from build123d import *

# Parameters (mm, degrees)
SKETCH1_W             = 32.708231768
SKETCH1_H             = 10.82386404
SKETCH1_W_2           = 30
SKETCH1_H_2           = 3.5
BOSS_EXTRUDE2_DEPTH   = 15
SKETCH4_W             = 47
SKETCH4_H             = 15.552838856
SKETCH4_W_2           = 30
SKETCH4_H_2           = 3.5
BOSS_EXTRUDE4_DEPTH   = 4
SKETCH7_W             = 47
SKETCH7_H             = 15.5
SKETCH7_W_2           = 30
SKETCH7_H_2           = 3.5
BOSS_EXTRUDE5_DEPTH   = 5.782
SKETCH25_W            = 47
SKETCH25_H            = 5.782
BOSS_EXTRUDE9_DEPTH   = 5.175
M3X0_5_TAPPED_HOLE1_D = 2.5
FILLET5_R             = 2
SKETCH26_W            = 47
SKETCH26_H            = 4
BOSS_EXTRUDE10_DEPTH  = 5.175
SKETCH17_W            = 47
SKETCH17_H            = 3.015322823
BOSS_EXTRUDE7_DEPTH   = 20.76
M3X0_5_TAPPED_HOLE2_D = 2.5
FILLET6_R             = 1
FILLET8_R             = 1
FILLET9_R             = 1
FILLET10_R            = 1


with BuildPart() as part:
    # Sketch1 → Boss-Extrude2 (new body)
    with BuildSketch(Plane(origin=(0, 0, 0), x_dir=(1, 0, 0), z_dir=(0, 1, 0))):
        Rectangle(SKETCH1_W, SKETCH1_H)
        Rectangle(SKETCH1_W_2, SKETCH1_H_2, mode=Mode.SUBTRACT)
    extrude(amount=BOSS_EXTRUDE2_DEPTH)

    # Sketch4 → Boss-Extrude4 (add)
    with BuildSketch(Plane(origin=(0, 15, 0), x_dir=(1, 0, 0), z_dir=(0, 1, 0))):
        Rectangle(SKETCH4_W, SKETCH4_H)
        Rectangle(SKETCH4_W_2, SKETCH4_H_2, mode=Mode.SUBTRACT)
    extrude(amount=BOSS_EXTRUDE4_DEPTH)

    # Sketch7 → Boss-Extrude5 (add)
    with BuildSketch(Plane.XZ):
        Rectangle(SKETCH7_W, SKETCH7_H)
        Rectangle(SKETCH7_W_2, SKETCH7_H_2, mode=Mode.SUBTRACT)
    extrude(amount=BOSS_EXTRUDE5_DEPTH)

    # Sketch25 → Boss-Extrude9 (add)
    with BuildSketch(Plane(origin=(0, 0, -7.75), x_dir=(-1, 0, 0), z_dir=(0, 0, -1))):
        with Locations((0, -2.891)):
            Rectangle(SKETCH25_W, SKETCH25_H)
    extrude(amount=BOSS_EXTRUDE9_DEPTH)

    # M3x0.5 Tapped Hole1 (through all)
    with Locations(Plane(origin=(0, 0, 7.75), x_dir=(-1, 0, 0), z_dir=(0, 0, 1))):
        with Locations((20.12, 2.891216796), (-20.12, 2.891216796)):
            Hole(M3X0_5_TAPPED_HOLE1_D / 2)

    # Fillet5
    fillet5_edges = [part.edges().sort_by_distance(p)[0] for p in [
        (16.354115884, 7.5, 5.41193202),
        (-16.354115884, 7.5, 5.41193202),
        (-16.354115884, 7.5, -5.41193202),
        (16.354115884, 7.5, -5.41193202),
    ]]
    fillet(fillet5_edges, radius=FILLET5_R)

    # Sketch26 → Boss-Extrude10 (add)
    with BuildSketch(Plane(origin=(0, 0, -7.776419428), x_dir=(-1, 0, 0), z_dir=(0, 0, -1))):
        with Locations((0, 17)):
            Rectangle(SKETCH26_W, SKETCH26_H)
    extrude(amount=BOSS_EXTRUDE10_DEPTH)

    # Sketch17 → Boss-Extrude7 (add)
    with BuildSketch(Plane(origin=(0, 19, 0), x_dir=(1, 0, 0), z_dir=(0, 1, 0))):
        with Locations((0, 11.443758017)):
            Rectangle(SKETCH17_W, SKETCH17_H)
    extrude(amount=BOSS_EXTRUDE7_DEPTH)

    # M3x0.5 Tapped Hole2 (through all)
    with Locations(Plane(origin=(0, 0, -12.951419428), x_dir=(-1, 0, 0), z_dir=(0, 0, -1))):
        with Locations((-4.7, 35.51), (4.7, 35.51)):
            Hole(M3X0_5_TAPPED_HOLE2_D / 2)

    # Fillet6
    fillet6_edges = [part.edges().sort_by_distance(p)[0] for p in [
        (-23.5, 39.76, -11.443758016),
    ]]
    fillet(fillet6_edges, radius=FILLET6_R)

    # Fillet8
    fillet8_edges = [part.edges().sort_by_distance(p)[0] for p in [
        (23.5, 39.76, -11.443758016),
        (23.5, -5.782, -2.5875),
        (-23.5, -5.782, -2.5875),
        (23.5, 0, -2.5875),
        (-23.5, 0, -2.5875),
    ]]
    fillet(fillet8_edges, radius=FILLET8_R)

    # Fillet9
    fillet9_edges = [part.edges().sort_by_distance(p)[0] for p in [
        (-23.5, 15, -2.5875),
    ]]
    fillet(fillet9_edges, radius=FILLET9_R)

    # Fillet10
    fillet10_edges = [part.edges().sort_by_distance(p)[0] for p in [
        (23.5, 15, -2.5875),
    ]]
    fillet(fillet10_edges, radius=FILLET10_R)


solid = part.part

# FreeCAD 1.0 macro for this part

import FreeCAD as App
import Part
import Sketcher
Q = App.Units.Quantity


def edges_at(feature, points):
    """Names of the edges that pass closest to the given points."""
    edges = feature.Shape.Edges
    near = lambda p: min(range(len(edges)), key=lambda i: edges[i].distToShape(Part.Vertex(*p))[0])
    return sorted({f"Edge{near(p) + 1}" for p in points})

doc = App.newDocument("Part")
body = doc.addObject("PartDesign::Body", "Body")

sketch1 = doc.addObject("Sketcher::SketchObject", "Sketch")
body.addObject(sketch1)
sketch1.AttachmentSupport = (doc.XZ_Plane, [""])
sketch1.MapMode = "FlatFace"
sketch1.addGeometry([
    Part.LineSegment(App.Vector(-16.4, -5.4, 0), App.Vector(-16.4, 5.4, 0)),
    Part.LineSegment(App.Vector(-16.4, 5.4, 0), App.Vector(16.4, 5.4, 0)),
    Part.LineSegment(App.Vector(16.4, 5.4, 0), App.Vector(16.4, -5.4, 0)),
    Part.LineSegment(App.Vector(16.4, -5.4, 0), App.Vector(-16.4, -5.4, 0)),
    Part.LineSegment(App.Vector(15, 1.8, 0), App.Vector(-15, 1.8, 0)),
    Part.LineSegment(App.Vector(-15, 1.8, 0), App.Vector(-15, -1.8, 0)),
    Part.LineSegment(App.Vector(-15, -1.8, 0), App.Vector(15, -1.8, 0)),
    Part.LineSegment(App.Vector(15, -1.8, 0), App.Vector(15, 1.8, 0)),
], False)
sketch1.addConstraint([
    Sketcher.Constraint("Coincident", 0, 2, 1, 1),
    Sketcher.Constraint("Coincident", 1, 2, 2, 1),
    Sketcher.Constraint("Coincident", 2, 2, 3, 1),
    Sketcher.Constraint("Coincident", 3, 2, 0, 1),
    Sketcher.Constraint("Coincident", 4, 2, 5, 1),
    Sketcher.Constraint("Coincident", 5, 2, 6, 1),
    Sketcher.Constraint("Coincident", 6, 2, 7, 1),
    Sketcher.Constraint("Coincident", 7, 2, 4, 1),
    Sketcher.Constraint("Vertical", 0),
    Sketcher.Constraint("Horizontal", 1),
    Sketcher.Constraint("Vertical", 2),
    Sketcher.Constraint("Horizontal", 3),
    Sketcher.Constraint("Horizontal", 4),
    Sketcher.Constraint("Vertical", 5),
    Sketcher.Constraint("Horizontal", 6),
    Sketcher.Constraint("Vertical", 7),
    Sketcher.Constraint("Symmetric", 0, 2, 2, 2, -1, 1),
    Sketcher.Constraint("Symmetric", 4, 2, 6, 2, -1, 1),
    Sketcher.Constraint("DistanceX", 4, 2, 4, 1, Q("30 mm")),
    Sketcher.Constraint("DistanceY", 5, 2, 5, 1, Q("3.5 mm")),
    Sketcher.Constraint("DistanceX", 1, 1, 1, 2, Q("32.708232 mm")),
    Sketcher.Constraint("DistanceY", 0, 1, 0, 2, Q("10.823864 mm")),
])
pad1 = doc.addObject("PartDesign::Pad", "Pad")
body.addObject(pad1)
pad1.Profile = sketch1
pad1.Length = 15
pad1.Reversed = True

sketch2 = doc.addObject("Sketcher::SketchObject", "Sketch001")
body.addObject(sketch2)
sketch2.AttachmentSupport = (doc.XZ_Plane, [""])
sketch2.MapMode = "FlatFace"
sketch2.AttachmentOffset = App.Placement(App.Vector(0, 0, -15), App.Rotation())
sketch2.addGeometry([
    Part.LineSegment(App.Vector(-23.5, -7.8, 0), App.Vector(-23.5, 7.8, 0)),
    Part.LineSegment(App.Vector(-23.5, 7.8, 0), App.Vector(23.5, 7.8, 0)),
    Part.LineSegment(App.Vector(23.5, 7.8, 0), App.Vector(23.5, -7.8, 0)),
    Part.LineSegment(App.Vector(23.5, -7.8, 0), App.Vector(-23.5, -7.8, 0)),
    Part.LineSegment(App.Vector(15, 1.8, 0), App.Vector(-15, 1.8, 0)),
    Part.LineSegment(App.Vector(-15, 1.8, 0), App.Vector(-15, -1.8, 0)),
    Part.LineSegment(App.Vector(-15, -1.8, 0), App.Vector(15, -1.8, 0)),
    Part.LineSegment(App.Vector(15, -1.8, 0), App.Vector(15, 1.8, 0)),
], False)
sketch2.addConstraint([
    Sketcher.Constraint("Coincident", 0, 2, 1, 1),
    Sketcher.Constraint("Coincident", 1, 2, 2, 1),
    Sketcher.Constraint("Coincident", 2, 2, 3, 1),
    Sketcher.Constraint("Coincident", 3, 2, 0, 1),
    Sketcher.Constraint("Coincident", 4, 2, 5, 1),
    Sketcher.Constraint("Coincident", 5, 2, 6, 1),
    Sketcher.Constraint("Coincident", 6, 2, 7, 1),
    Sketcher.Constraint("Coincident", 7, 2, 4, 1),
    Sketcher.Constraint("Vertical", 0),
    Sketcher.Constraint("Horizontal", 1),
    Sketcher.Constraint("Vertical", 2),
    Sketcher.Constraint("Horizontal", 3),
    Sketcher.Constraint("Horizontal", 4),
    Sketcher.Constraint("Vertical", 5),
    Sketcher.Constraint("Horizontal", 6),
    Sketcher.Constraint("Vertical", 7),
    Sketcher.Constraint("Symmetric", 0, 2, 2, 2, -1, 1),
    Sketcher.Constraint("Symmetric", 4, 2, 6, 2, -1, 1),
    Sketcher.Constraint("DistanceX", 1, 1, 1, 2, Q("47 mm")),
    Sketcher.Constraint("DistanceX", 4, 2, 4, 1, Q("30 mm")),
    Sketcher.Constraint("DistanceY", 5, 2, 5, 1, Q("3.5 mm")),
    Sketcher.Constraint("DistanceY", 0, 1, 0, 2, Q("15.552839 mm")),
])
pad2 = doc.addObject("PartDesign::Pad", "Pad001")
body.addObject(pad2)
pad2.Profile = sketch2
pad2.Length = 4
pad2.Reversed = True

sketch3 = doc.addObject("Sketcher::SketchObject", "Sketch002")
body.addObject(sketch3)
sketch3.AttachmentSupport = (doc.XZ_Plane, [""])
sketch3.MapMode = "FlatFace"
sketch3.addGeometry([
    Part.LineSegment(App.Vector(-23.5, 7.8, 0), App.Vector(-23.5, -7.8, 0)),
    Part.LineSegment(App.Vector(-23.5, -7.8, 0), App.Vector(23.5, -7.8, 0)),
    Part.LineSegment(App.Vector(23.5, -7.8, 0), App.Vector(23.5, 7.8, 0)),
    Part.LineSegment(App.Vector(23.5, 7.8, 0), App.Vector(-23.5, 7.8, 0)),
    Part.LineSegment(App.Vector(15, -1.8, 0), App.Vector(-15, -1.8, 0)),
    Part.LineSegment(App.Vector(-15, -1.8, 0), App.Vector(-15, 1.8, 0)),
    Part.LineSegment(App.Vector(-15, 1.8, 0), App.Vector(15, 1.8, 0)),
    Part.LineSegment(App.Vector(15, 1.8, 0), App.Vector(15, -1.8, 0)),
], False)
sketch3.addConstraint([
    Sketcher.Constraint("Coincident", 0, 2, 1, 1),
    Sketcher.Constraint("Coincident", 1, 2, 2, 1),
    Sketcher.Constraint("Coincident", 2, 2, 3, 1),
    Sketcher.Constraint("Coincident", 3, 2, 0, 1),
    Sketcher.Constraint("Coincident", 4, 2, 5, 1),
    Sketcher.Constraint("Coincident", 5, 2, 6, 1),
    Sketcher.Constraint("Coincident", 6, 2, 7, 1),
    Sketcher.Constraint("Coincident", 7, 2, 4, 1),
    Sketcher.Constraint("Vertical", 0),
    Sketcher.Constraint("Horizontal", 1),
    Sketcher.Constraint("Vertical", 2),
    Sketcher.Constraint("Horizontal", 3),
    Sketcher.Constraint("Horizontal", 4),
    Sketcher.Constraint("Vertical", 5),
    Sketcher.Constraint("Horizontal", 6),
    Sketcher.Constraint("Vertical", 7),
    Sketcher.Constraint("Symmetric", 0, 2, 2, 2, -1, 1),
    Sketcher.Constraint("Symmetric", 4, 2, 6, 2, -1, 1),
    Sketcher.Constraint("DistanceX", 1, 1, 1, 2, Q("47 mm")),
    Sketcher.Constraint("DistanceX", 4, 2, 4, 1, Q("30 mm")),
    Sketcher.Constraint("DistanceY", 0, 2, 0, 1, Q("15.5 mm")),
    Sketcher.Constraint("DistanceY", 5, 1, 5, 2, Q("3.5 mm")),
])
pad3 = doc.addObject("PartDesign::Pad", "Pad002")
body.addObject(pad3)
pad3.Profile = sketch3
pad3.Length = 5.782

sketch4 = doc.addObject("Sketcher::SketchObject", "Sketch003")
body.addObject(sketch4)
sketch4.AttachmentSupport = (doc.XY_Plane, [""])
sketch4.MapMode = "FlatFace"
sketch4.AttachmentOffset = App.Placement(App.Vector(0, 0, -7.75), App.Rotation())
sketch4.addGeometry([
    Part.LineSegment(App.Vector(24, 0, 0), App.Vector(24, -6, 0)),
    Part.LineSegment(App.Vector(24, -6, 0), App.Vector(-24, -6, 0)),
    Part.LineSegment(App.Vector(-24, -6, 0), App.Vector(-24, 0, 0)),
    Part.LineSegment(App.Vector(-24, 0, 0), App.Vector(24, 0, 0)),
], False)
sketch4.addConstraint([
    Sketcher.Constraint("Coincident", 0, 2, 1, 1),
    Sketcher.Constraint("Coincident", 1, 2, 2, 1),
    Sketcher.Constraint("Coincident", 2, 2, 3, 1),
    Sketcher.Constraint("Coincident", 3, 2, 0, 1),
    Sketcher.Constraint("Vertical", 0),
    Sketcher.Constraint("Horizontal", 1),
    Sketcher.Constraint("Vertical", 2),
    Sketcher.Constraint("Horizontal", 3),
    Sketcher.Constraint("Symmetric", 2, 2, 3, 2, -1, 1),
    Sketcher.Constraint("DistanceX", 1, 2, 1, 1, Q("47 mm")),
    Sketcher.Constraint("DistanceY", 0, 2, 0, 1, Q("5.782 mm")),
])
pad4 = doc.addObject("PartDesign::Pad", "Pad003")
body.addObject(pad4)
pad4.Profile = sketch4
pad4.Length = 5.175
pad4.Reversed = True

sketch5 = doc.addObject("Sketcher::SketchObject", "Sketch004")
body.addObject(sketch5)
sketch5.AttachmentSupport = (doc.XY_Plane, [""])
sketch5.MapMode = "FlatFace"
sketch5.AttachmentOffset = App.Placement(App.Vector(0, 0, 7.75), App.Rotation())
sketch5.addGeometry([
    Part.Circle(App.Vector(-20.1, -2.9, 0), App.Vector(0, 0, 1), 1.2),
    Part.Circle(App.Vector(20.1, -2.9, 0), App.Vector(0, 0, 1), 1.2),
], False)
sketch5.addConstraint([
    Sketcher.Constraint("Equal", 0, 1),
    Sketcher.Constraint("Symmetric", 0, 3, 1, 3, -2),
    Sketcher.Constraint("Diameter", 0, Q("2.5 mm")),
    Sketcher.Constraint("DistanceX", 0, 3, -1, 1, Q("20.12 mm")),
    Sketcher.Constraint("DistanceY", 0, 3, -1, 1, Q("2.891217 mm")),
])
doc.recompute()
hole = doc.addObject("PartDesign::Hole", "Hole")
body.addObject(hole)
hole.Profile = sketch5
hole.ThreadType = "None"
hole.Diameter = 2.5
hole.DepthType = "ThroughAll"
doc.recompute()

fillet = doc.addObject("PartDesign::Fillet", "Fillet")
body.addObject(fillet)
fillet.Base = (hole, edges_at(hole, [
    (16.354, 7.5, 5.412),
    (-16.354, 7.5, 5.412),
    (-16.354, 7.5, -5.412),
    (16.354, 7.5, -5.412),
]))
fillet.Radius = 2

sketch6 = doc.addObject("Sketcher::SketchObject", "Sketch005")
body.addObject(sketch6)
sketch6.AttachmentSupport = (doc.XY_Plane, [""])
sketch6.MapMode = "FlatFace"
sketch6.AttachmentOffset = App.Placement(App.Vector(0, 0, -7.776419), App.Rotation())
sketch6.addGeometry([
    Part.LineSegment(App.Vector(23.5, 19, 0), App.Vector(23.5, 15, 0)),
    Part.LineSegment(App.Vector(23.5, 15, 0), App.Vector(-23.5, 15, 0)),
    Part.LineSegment(App.Vector(-23.5, 15, 0), App.Vector(-23.5, 19, 0)),
    Part.LineSegment(App.Vector(-23.5, 19, 0), App.Vector(23.5, 19, 0)),
], False)
sketch6.addConstraint([
    Sketcher.Constraint("Coincident", 0, 2, 1, 1),
    Sketcher.Constraint("Coincident", 1, 2, 2, 1),
    Sketcher.Constraint("Coincident", 2, 2, 3, 1),
    Sketcher.Constraint("Coincident", 3, 2, 0, 1),
    Sketcher.Constraint("Vertical", 0),
    Sketcher.Constraint("Horizontal", 1),
    Sketcher.Constraint("Vertical", 2),
    Sketcher.Constraint("Horizontal", 3),
    Sketcher.Constraint("DistanceX", 1, 2, 1, 1, Q("47 mm")),
    Sketcher.Constraint("DistanceY", 0, 2, 0, 1, Q("4 mm")),
    Sketcher.Constraint("DistanceY", -1, 1, 0, 2, Q("15 mm")),
    Sketcher.Constraint("DistanceX", -1, 1, 0, 2, Q("23.5 mm")),
])
pad5 = doc.addObject("PartDesign::Pad", "Pad004")
body.addObject(pad5)
pad5.Profile = sketch6
pad5.Length = 5.175
pad5.Reversed = True

sketch7 = doc.addObject("Sketcher::SketchObject", "Sketch006")
body.addObject(sketch7)
sketch7.AttachmentSupport = (doc.XZ_Plane, [""])
sketch7.MapMode = "FlatFace"
sketch7.AttachmentOffset = App.Placement(App.Vector(0, 0, -19), App.Rotation())
sketch7.addGeometry([
    Part.LineSegment(App.Vector(-23.5, -13, 0), App.Vector(-23.5, -9.9, 0)),
    Part.LineSegment(App.Vector(-23.5, -9.9, 0), App.Vector(23.5, -9.9, 0)),
    Part.LineSegment(App.Vector(23.5, -9.9, 0), App.Vector(23.5, -13, 0)),
    Part.LineSegment(App.Vector(23.5, -13, 0), App.Vector(-23.5, -13, 0)),
], False)
sketch7.addConstraint([
    Sketcher.Constraint("Coincident", 0, 2, 1, 1),
    Sketcher.Constraint("Coincident", 1, 2, 2, 1),
    Sketcher.Constraint("Coincident", 2, 2, 3, 1),
    Sketcher.Constraint("Coincident", 3, 2, 0, 1),
    Sketcher.Constraint("Vertical", 0),
    Sketcher.Constraint("Horizontal", 1),
    Sketcher.Constraint("Vertical", 2),
    Sketcher.Constraint("Horizontal", 3),
    Sketcher.Constraint("DistanceX", 1, 1, 1, 2, Q("47 mm")),
    Sketcher.Constraint("DistanceX", 0, 2, -1, 1, Q("23.5 mm")),
    Sketcher.Constraint("DistanceY", 0, 1, 0, 2, Q("3.015323 mm")),
    Sketcher.Constraint("DistanceY", 2, 2, -1, 1, Q("12.951419 mm")),
])
pad6 = doc.addObject("PartDesign::Pad", "Pad005")
body.addObject(pad6)
pad6.Profile = sketch7
pad6.Length = 20.76
pad6.Reversed = True

sketch8 = doc.addObject("Sketcher::SketchObject", "Sketch007")
body.addObject(sketch8)
sketch8.AttachmentSupport = (doc.XY_Plane, [""])
sketch8.MapMode = "FlatFace"
sketch8.AttachmentOffset = App.Placement(App.Vector(0, 0, -12.951419), App.Rotation())
sketch8.addGeometry([
    Part.Circle(App.Vector(4.7, 35.5, 0), App.Vector(0, 0, 1), 1.2),
    Part.Circle(App.Vector(-4.7, 35.5, 0), App.Vector(0, 0, 1), 1.2),
], False)
sketch8.addConstraint([
    Sketcher.Constraint("Equal", 0, 1),
    Sketcher.Constraint("Symmetric", 0, 3, 1, 3, -2),
    Sketcher.Constraint("Diameter", 0, Q("2.5 mm")),
    Sketcher.Constraint("DistanceX", -1, 1, 0, 3, Q("4.7 mm")),
    Sketcher.Constraint("DistanceY", -1, 1, 0, 3, Q("35.51 mm")),
])
doc.recompute()
hole2 = doc.addObject("PartDesign::Hole", "Hole001")
body.addObject(hole2)
hole2.Profile = sketch8
hole2.ThreadType = "None"
hole2.Diameter = 2.5
hole2.DepthType = "ThroughAll"
hole2.Reversed = True
doc.recompute()

fillet2 = doc.addObject("PartDesign::Fillet", "Fillet001")
body.addObject(fillet2)
fillet2.Base = (hole2, edges_at(hole2, [(-23.5, 39.76, -11.444)]))
fillet2.Radius = 1
doc.recompute()

fillet3 = doc.addObject("PartDesign::Fillet", "Fillet002")
body.addObject(fillet3)
fillet3.Base = (fillet2, edges_at(fillet2, [
    (23.5, 39.76, -11.444),
    (23.5, -5.782, -2.587),
    (-23.5, -5.782, -2.587),
    (23.5, 0, -2.587),
    (-23.5, 0, -2.587),
]))
fillet3.Radius = 1
doc.recompute()

fillet4 = doc.addObject("PartDesign::Fillet", "Fillet003")
body.addObject(fillet4)
fillet4.Base = (fillet3, edges_at(fillet3, [(-23.5, 15, -2.587)]))
fillet4.Radius = 1
doc.recompute()

fillet5 = doc.addObject("PartDesign::Fillet", "Fillet004")
body.addObject(fillet5)
fillet5.Base = (fillet4, edges_at(fillet4, [(23.5, 15, -2.587)]))
fillet5.Radius = 1

doc.recompute()
